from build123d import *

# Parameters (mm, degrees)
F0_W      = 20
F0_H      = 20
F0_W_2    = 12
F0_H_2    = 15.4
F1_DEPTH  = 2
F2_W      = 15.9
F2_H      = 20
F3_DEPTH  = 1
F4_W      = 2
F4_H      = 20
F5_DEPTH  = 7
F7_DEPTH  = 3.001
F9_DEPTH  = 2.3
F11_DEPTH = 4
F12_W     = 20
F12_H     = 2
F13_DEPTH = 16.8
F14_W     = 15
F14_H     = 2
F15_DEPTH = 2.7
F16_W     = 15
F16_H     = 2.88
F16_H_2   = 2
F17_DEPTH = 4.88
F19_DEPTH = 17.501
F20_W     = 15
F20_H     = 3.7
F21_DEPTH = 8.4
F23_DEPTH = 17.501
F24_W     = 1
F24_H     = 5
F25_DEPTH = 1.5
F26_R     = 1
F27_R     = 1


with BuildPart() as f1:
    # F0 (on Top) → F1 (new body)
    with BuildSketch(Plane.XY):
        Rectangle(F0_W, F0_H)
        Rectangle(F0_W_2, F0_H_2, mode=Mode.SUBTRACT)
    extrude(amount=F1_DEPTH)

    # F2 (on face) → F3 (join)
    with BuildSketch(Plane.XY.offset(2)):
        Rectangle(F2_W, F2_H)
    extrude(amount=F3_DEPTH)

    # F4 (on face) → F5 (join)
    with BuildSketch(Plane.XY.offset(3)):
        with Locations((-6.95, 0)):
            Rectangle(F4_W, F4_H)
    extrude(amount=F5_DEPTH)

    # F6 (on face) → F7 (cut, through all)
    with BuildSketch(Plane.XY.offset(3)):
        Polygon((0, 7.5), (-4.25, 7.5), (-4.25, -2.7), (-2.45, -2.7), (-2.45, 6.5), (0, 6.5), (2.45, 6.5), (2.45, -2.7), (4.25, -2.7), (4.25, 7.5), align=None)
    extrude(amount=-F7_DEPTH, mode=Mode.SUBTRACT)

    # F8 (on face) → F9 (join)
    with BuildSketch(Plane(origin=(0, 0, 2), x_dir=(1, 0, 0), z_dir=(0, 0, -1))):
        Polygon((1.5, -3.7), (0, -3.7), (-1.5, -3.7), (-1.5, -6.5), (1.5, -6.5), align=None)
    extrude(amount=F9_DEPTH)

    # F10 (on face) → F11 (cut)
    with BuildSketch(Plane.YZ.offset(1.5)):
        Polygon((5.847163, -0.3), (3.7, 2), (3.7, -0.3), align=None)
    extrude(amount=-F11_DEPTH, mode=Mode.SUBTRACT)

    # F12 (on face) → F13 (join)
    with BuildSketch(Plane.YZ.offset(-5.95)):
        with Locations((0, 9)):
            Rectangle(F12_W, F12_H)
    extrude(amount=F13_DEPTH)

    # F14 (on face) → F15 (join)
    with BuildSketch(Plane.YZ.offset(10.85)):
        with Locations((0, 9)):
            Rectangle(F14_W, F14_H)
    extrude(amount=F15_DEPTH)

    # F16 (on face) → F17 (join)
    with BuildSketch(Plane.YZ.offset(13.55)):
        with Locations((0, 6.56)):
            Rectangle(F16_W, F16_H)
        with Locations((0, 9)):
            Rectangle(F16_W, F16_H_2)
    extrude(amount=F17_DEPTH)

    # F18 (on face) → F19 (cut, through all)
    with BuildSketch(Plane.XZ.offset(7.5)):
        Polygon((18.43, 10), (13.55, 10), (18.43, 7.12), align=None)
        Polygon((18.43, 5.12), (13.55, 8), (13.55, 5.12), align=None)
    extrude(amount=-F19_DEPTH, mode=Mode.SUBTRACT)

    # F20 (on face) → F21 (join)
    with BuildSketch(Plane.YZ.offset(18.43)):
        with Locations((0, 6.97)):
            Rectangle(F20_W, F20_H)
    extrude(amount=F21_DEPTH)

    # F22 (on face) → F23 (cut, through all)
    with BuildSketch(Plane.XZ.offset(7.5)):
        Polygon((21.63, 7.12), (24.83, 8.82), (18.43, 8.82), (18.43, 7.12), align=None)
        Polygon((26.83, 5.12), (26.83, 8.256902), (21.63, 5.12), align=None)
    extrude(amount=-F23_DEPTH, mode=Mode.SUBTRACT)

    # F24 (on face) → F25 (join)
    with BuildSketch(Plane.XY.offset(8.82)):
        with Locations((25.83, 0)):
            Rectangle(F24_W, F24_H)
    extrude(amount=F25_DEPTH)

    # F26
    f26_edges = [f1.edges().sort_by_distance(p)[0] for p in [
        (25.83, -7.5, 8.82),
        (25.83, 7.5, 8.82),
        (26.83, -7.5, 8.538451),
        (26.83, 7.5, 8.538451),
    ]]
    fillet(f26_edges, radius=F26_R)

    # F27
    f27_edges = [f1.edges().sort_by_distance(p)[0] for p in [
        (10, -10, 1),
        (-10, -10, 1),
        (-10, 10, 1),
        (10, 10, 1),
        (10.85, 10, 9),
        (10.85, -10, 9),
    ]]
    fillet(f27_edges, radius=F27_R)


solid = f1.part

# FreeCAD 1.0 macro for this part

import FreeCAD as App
import Part
import Sketcher

V = App.Vector
Q = App.Units.Quantity


def edges_at(feature, points):
    """Names of the edges that pass closest to the given points."""
    edges = feature.Shape.Edges
    near = lambda p: min(range(len(edges)), key=lambda i: edges[i].distToShape(Part.Vertex(*p))[0])
    return sorted({f"Edge{near(p) + 1}" for p in points})


def add_polygon(sketch, points):
    """Adds a closed chain of lines whose ends are joined by coincident constraints."""
    first, n = sketch.GeometryCount, len(points)
    for a, b in zip(points, points[1:] + points[:1]):
        sketch.addGeometry(Part.LineSegment(App.Vector(*a, 0), App.Vector(*b, 0)), False)
    for i in range(n):
        sketch.addConstraint(Sketcher.Constraint("Coincident", first + i, 2, first + (i + 1) % n, 1))

doc = App.newDocument("Part")
body = doc.addObject("PartDesign::Body", "Body")

sketch1 = body.newObject("Sketcher::SketchObject", "Sketch")
sketch1.AttachmentSupport = (doc.getObject("XY_Plane"), [""])
sketch1.MapMode = "FlatFace"
add_polygon(sketch1, [(-10, 10), (-10, -10), (10, -10), (10, 10)])
add_polygon(sketch1, [(6, -7.7), (-6, -7.7), (-6, 7.7), (6, 7.7)])
sketch1.addConstraint([
    Sketcher.Constraint("Vertical", 0),
    Sketcher.Constraint("Horizontal", 1),
    Sketcher.Constraint("Vertical", 2),
    Sketcher.Constraint("Horizontal", 3),
    Sketcher.Constraint("Horizontal", 4),
    Sketcher.Constraint("Vertical", 5),
    Sketcher.Constraint("Horizontal", 6),
    Sketcher.Constraint("Vertical", 7),
    Sketcher.Constraint("Symmetric", 0, 2, 2, 2, -1, 1),
    Sketcher.Constraint("Symmetric", 4, 2, 6, 2, -1, 1),
    Sketcher.Constraint("Equal", 3, 0),
    Sketcher.Constraint("DistanceX", 1, 1, 1, 2, Q("20 mm")),
    Sketcher.Constraint("DistanceX", 4, 2, 4, 1, Q("12 mm")),
    Sketcher.Constraint("DistanceY", 5, 1, 5, 2, Q("15.4 mm")),
])
pad1 = body.newObject("PartDesign::Pad", "Pad")
pad1.Profile = sketch1
pad1.Length = 2

sketch2 = body.newObject("Sketcher::SketchObject", "Sketch001")
sketch2.AttachmentSupport = (doc.getObject("XY_Plane"), [""])
sketch2.MapMode = "FlatFace"
sketch2.AttachmentOffset = App.Placement(V(0, 0, 2), App.Rotation())
add_polygon(sketch2, [(-7.95, 10), (-7.95, -10), (7.95, -10), (7.95, 10)])
sketch2.addConstraint([
    Sketcher.Constraint("Vertical", 0),
    Sketcher.Constraint("Horizontal", 1),
    Sketcher.Constraint("Vertical", 2),
    Sketcher.Constraint("Horizontal", 3),
    Sketcher.Constraint("Symmetric", 0, 2, 2, 2, -1, 1),
    Sketcher.Constraint("DistanceY", 0, 2, 0, 1, Q("20 mm")),
    Sketcher.Constraint("DistanceX", 1, 1, 1, 2, Q("15.9 mm")),
])
pad2 = body.newObject("PartDesign::Pad", "Pad001")
pad2.Profile = sketch2
pad2.Length = 1

sketch3 = body.newObject("Sketcher::SketchObject", "Sketch002")
sketch3.AttachmentSupport = (doc.getObject("XY_Plane"), [""])
sketch3.MapMode = "FlatFace"
sketch3.AttachmentOffset = App.Placement(V(0, 0, 3), App.Rotation())
add_polygon(sketch3, [(-7.95, 10), (-7.95, -10), (-5.95, -10), (-5.95, 10)])
sketch3.addConstraint([
    Sketcher.Constraint("Vertical", 0),
    Sketcher.Constraint("Horizontal", 1),
    Sketcher.Constraint("Vertical", 2),
    Sketcher.Constraint("Horizontal", 3),
    Sketcher.Constraint("DistanceX", 1, 1, 1, 2, Q("2 mm")),
    Sketcher.Constraint("DistanceY", 0, 2, 0, 1, Q("20 mm")),
    Sketcher.Constraint("DistanceY", 0, 2, -1, 1, Q("10 mm")),
    Sketcher.Constraint("DistanceX", 0, 2, -1, 1, Q("7.95 mm")),
])
pad3 = body.newObject("PartDesign::Pad", "Pad002")
pad3.Profile = sketch3
pad3.Length = 7

sketch4 = body.newObject("Sketcher::SketchObject", "Sketch003")
sketch4.AttachmentSupport = (doc.getObject("XY_Plane"), [""])
sketch4.MapMode = "FlatFace"
sketch4.AttachmentOffset = App.Placement(V(0, 0, 3), App.Rotation())
add_polygon(sketch4, [(-4.25, 7.5), (-4.25, -2.7), (-2.45, -2.7), (-2.45, 6.5), (2.45, 6.5), (2.45, -2.7), (4.25, -2.7), (4.25, 7.5)])
sketch4.addConstraint([
    Sketcher.Constraint("Vertical", 0),
    Sketcher.Constraint("Horizontal", 1),
    Sketcher.Constraint("Vertical", 2),
    Sketcher.Constraint("Horizontal", 3),
    Sketcher.Constraint("Vertical", 4),
    Sketcher.Constraint("Horizontal", 5),
    Sketcher.Constraint("Vertical", 6),
    Sketcher.Constraint("Horizontal", 7),
    Sketcher.Constraint("Symmetric", 1, 2, 4, 2, -2),
    Sketcher.Constraint("Equal", 1, 5),
    Sketcher.Constraint("DistanceX", 1, 1, 1, 2, Q("1.8 mm")),
    Sketcher.Constraint("DistanceX", 3, 1, 3, 2, Q("4.9 mm")),
    Sketcher.Constraint("DistanceY", 0, 2, 0, 1, Q("10.2 mm")),
    Sketcher.Constraint("DistanceY", 2, 1, 2, 2, Q("9.2 mm")),
    Sketcher.Constraint("DistanceY", 0, 2, -1, 1, Q("2.7 mm")),
])
pocket1 = body.newObject("PartDesign::Pocket", "Pocket")
pocket1.Profile = sketch4
pocket1.Type = "ThroughAll"

sketch5 = body.newObject("Sketcher::SketchObject", "Sketch004")
sketch5.AttachmentSupport = (doc.getObject("XY_Plane"), [""])
sketch5.MapMode = "FlatFace"
sketch5.AttachmentOffset = App.Placement(V(0, 0, 2), App.Rotation())
add_polygon(sketch5, [(1.5, 3.7), (-1.5, 3.7), (-1.5, 6.5), (1.5, 6.5)])
sketch5.addConstraint([
    Sketcher.Constraint("Horizontal", 0),
    Sketcher.Constraint("Vertical", 1),
    Sketcher.Constraint("Horizontal", 2),
    Sketcher.Constraint("Vertical", 3),
    Sketcher.Constraint("DistanceX", 0, 2, 0, 1, Q("3 mm")),
    Sketcher.Constraint("DistanceY", 1, 1, 1, 2, Q("2.8 mm")),
    Sketcher.Constraint("DistanceX", 0, 2, -1, 1, Q("1.5 mm")),
    Sketcher.Constraint("DistanceY", -1, 1, 0, 2, Q("3.7 mm")),
])
pad4 = body.newObject("PartDesign::Pad", "Pad003")
pad4.Profile = sketch5
pad4.Length = 2.3
pad4.Reversed = True

sketch6 = body.newObject("Sketcher::SketchObject", "Sketch005")
sketch6.AttachmentSupport = (doc.getObject("YZ_Plane"), [""])
sketch6.MapMode = "FlatFace"
sketch6.AttachmentOffset = App.Placement(V(0, 0, 1.5), App.Rotation())
add_polygon(sketch6, [(5.847163, -0.3), (3.7, 2), (3.7, -0.3)])
sketch6.addConstraint([
    Sketcher.Constraint("Vertical", 1),
    Sketcher.Constraint("Horizontal", 2),
    Sketcher.Constraint("DistanceY", 1, 2, 1, 1, Q("2.3 mm")),
    Sketcher.Constraint("DistanceY", -1, 1, 0, 2, Q("2 mm")),
    Sketcher.Constraint("DistanceX", -1, 1, 0, 2, Q("3.7 mm")),
    Sketcher.Constraint("DistanceX", 2, 1, 2, 2, Q("2.147163 mm")),
])
pocket2 = body.newObject("PartDesign::Pocket", "Pocket001")
pocket2.Profile = sketch6
pocket2.Length = 4

sketch7 = body.newObject("Sketcher::SketchObject", "Sketch006")
sketch7.AttachmentSupport = (doc.getObject("YZ_Plane"), [""])
sketch7.MapMode = "FlatFace"
sketch7.AttachmentOffset = App.Placement(V(0, 0, -5.95), App.Rotation())
add_polygon(sketch7, [(-10, 10), (-10, 8), (10, 8), (10, 10)])
sketch7.addConstraint([
    Sketcher.Constraint("Vertical", 0),
    Sketcher.Constraint("Horizontal", 1),
    Sketcher.Constraint("Vertical", 2),
    Sketcher.Constraint("Horizontal", 3),
    Sketcher.Constraint("DistanceX", 1, 1, 1, 2, Q("20 mm")),
    Sketcher.Constraint("DistanceY", 0, 2, 0, 1, Q("2 mm")),
    Sketcher.Constraint("DistanceX", 0, 2, -1, 1, Q("10 mm")),
    Sketcher.Constraint("DistanceY", -1, 1, 0, 2, Q("8 mm")),
])
pad5 = body.newObject("PartDesign::Pad", "Pad004")
pad5.Profile = sketch7
pad5.Length = 16.8

sketch8 = body.newObject("Sketcher::SketchObject", "Sketch007")
sketch8.AttachmentSupport = (doc.getObject("YZ_Plane"), [""])
sketch8.MapMode = "FlatFace"
sketch8.AttachmentOffset = App.Placement(V(0, 0, 10.85), App.Rotation())
add_polygon(sketch8, [(-7.5, 10), (-7.5, 8), (7.5, 8), (7.5, 10)])
sketch8.addConstraint([
    Sketcher.Constraint("Vertical", 0),
    Sketcher.Constraint("Horizontal", 1),
    Sketcher.Constraint("Vertical", 2),
    Sketcher.Constraint("Horizontal", 3),
    Sketcher.Constraint("DistanceX", 1, 1, 1, 2, Q("15 mm")),
    Sketcher.Constraint("DistanceY", 0, 2, 0, 1, Q("2 mm")),
    Sketcher.Constraint("DistanceY", -1, 1, 0, 2, Q("8 mm")),
    Sketcher.Constraint("DistanceX", 0, 2, -1, 1, Q("7.5 mm")),
])
pad6 = body.newObject("PartDesign::Pad", "Pad005")
pad6.Profile = sketch8
pad6.Length = 2.7

sketch9 = body.newObject("Sketcher::SketchObject", "Sketch008")
sketch9.AttachmentSupport = (doc.getObject("YZ_Plane"), [""])
sketch9.MapMode = "FlatFace"
sketch9.AttachmentOffset = App.Placement(V(0, 0, 13.55), App.Rotation())
add_polygon(sketch9, [(-7.5, 5.12), (7.5, 5.12), (7.5, 10), (-7.5, 10)])
sketch9.addConstraint([
    Sketcher.Constraint("Horizontal", 0),
    Sketcher.Constraint("Vertical", 1),
    Sketcher.Constraint("Horizontal", 2),
    Sketcher.Constraint("Vertical", 3),
    Sketcher.Constraint("DistanceX", 0, 1, 0, 2, Q("15 mm")),
    Sketcher.Constraint("DistanceY", -1, 1, 1, 2, Q("10 mm")),
    Sketcher.Constraint("DistanceY", 1, 1, 1, 2, Q("4.88 mm")),
    Sketcher.Constraint("DistanceX", -1, 1, 0, 2, Q("7.5 mm")),
])
pad7 = body.newObject("PartDesign::Pad", "Pad006")
pad7.Profile = sketch9
pad7.Length = 4.88

sketch10 = body.newObject("Sketcher::SketchObject", "Sketch009")
sketch10.AttachmentSupport = (doc.getObject("XZ_Plane"), [""])
sketch10.MapMode = "FlatFace"
sketch10.AttachmentOffset = App.Placement(V(0, 0, 7.5), App.Rotation())
add_polygon(sketch10, [(18.43, 10), (13.55, 10), (18.43, 7.12)])
add_polygon(sketch10, [(18.43, 5.12), (13.55, 8), (13.55, 5.12)])
sketch10.addConstraint([
    Sketcher.Constraint("Horizontal", 0),
    Sketcher.Constraint("Vertical", 2),
    Sketcher.Constraint("Vertical", 4),
    Sketcher.Constraint("Horizontal", 5),
    Sketcher.Constraint("Parallel", 1, 3),
    Sketcher.Constraint("Vertical", 0, 2, 3, 2),
    Sketcher.Constraint("Vertical", 2, 2, 5, 2),
    Sketcher.Constraint("DistanceY", -1, 1, 0, 2, Q("10 mm")),
    Sketcher.Constraint("DistanceY", -1, 1, 3, 2, Q("8 mm")),
    Sketcher.Constraint("DistanceX", 0, 2, 0, 1, Q("4.88 mm")),
    Sketcher.Constraint("DistanceY", 2, 1, 2, 2, Q("2.88 mm")),
    Sketcher.Constraint("DistanceX", -1, 1, 0, 2, Q("13.55 mm")),
])
pocket3 = body.newObject("PartDesign::Pocket", "Pocket002")
pocket3.Profile = sketch10
pocket3.Type = "ThroughAll"

sketch11 = body.newObject("Sketcher::SketchObject", "Sketch010")
sketch11.AttachmentSupport = (doc.getObject("YZ_Plane"), [""])
sketch11.MapMode = "FlatFace"
sketch11.AttachmentOffset = App.Placement(V(0, 0, 18.43), App.Rotation())
add_polygon(sketch11, [(-7.5, 8.82), (-7.5, 5.12), (7.5, 5.12), (7.5, 8.82)])
sketch11.addConstraint([
    Sketcher.Constraint("Vertical", 0),
    Sketcher.Constraint("Horizontal", 1),
    Sketcher.Constraint("Vertical", 2),
    Sketcher.Constraint("Horizontal", 3),
    Sketcher.Constraint("DistanceX", 1, 1, 1, 2, Q("15 mm")),
    Sketcher.Constraint("DistanceY", 0, 2, 0, 1, Q("3.7 mm")),
    Sketcher.Constraint("DistanceX", 0, 2, -1, 1, Q("7.5 mm")),
    Sketcher.Constraint("DistanceY", -1, 1, 0, 2, Q("5.12 mm")),
])
pad8 = body.newObject("PartDesign::Pad", "Pad007")
pad8.Profile = sketch11
pad8.Length = 8.4

sketch12 = body.newObject("Sketcher::SketchObject", "Sketch011")
sketch12.AttachmentSupport = (doc.getObject("XZ_Plane"), [""])
sketch12.MapMode = "FlatFace"
sketch12.AttachmentOffset = App.Placement(V(0, 0, 7.5), App.Rotation())
add_polygon(sketch12, [(21.63, 7.12), (24.83, 8.82), (18.43, 8.82), (18.43, 7.12)])
add_polygon(sketch12, [(26.83, 5.12), (26.83, 8.256902), (21.63, 5.12)])
sketch12.addConstraint([
    Sketcher.Constraint("Horizontal", 1),
    Sketcher.Constraint("Vertical", 2),
    Sketcher.Constraint("Horizontal", 3),
    Sketcher.Constraint("Vertical", 4),
    Sketcher.Constraint("Horizontal", 6),
    Sketcher.Constraint("Vertical", 3, 2, 5, 2),
    Sketcher.Constraint("DistanceX", 1, 2, 1, 1, Q("6.4 mm")),
    Sketcher.Constraint("DistanceX", 3, 1, 3, 2, Q("3.2 mm")),
    Sketcher.Constraint("DistanceX", 6, 1, 6, 2, Q("5.2 mm")),
    Sketcher.Constraint("DistanceY", 2, 2, 2, 1, Q("1.7 mm")),
    Sketcher.Constraint("DistanceY", 5, 2, 3, 2, Q("2 mm")),
    Sketcher.Constraint("DistanceX", -1, 1, 0, 2, Q("24.83 mm")),
    Sketcher.Constraint("DistanceY", -1, 1, 0, 2, Q("8.82 mm")),
    Sketcher.Constraint("DistanceY", 4, 2, 0, 2, Q("0.563098 mm")),
])
pocket4 = body.newObject("PartDesign::Pocket", "Pocket003")
pocket4.Profile = sketch12
pocket4.Type = "ThroughAll"

sketch13 = body.newObject("Sketcher::SketchObject", "Sketch012")
sketch13.AttachmentSupport = (doc.getObject("XY_Plane"), [""])
sketch13.MapMode = "FlatFace"
sketch13.AttachmentOffset = App.Placement(V(0, 0, 8.82), App.Rotation())
add_polygon(sketch13, [(25.33, 2.5), (25.33, -2.5), (26.33, -2.5), (26.33, 2.5)])
sketch13.addConstraint([
    Sketcher.Constraint("Vertical", 0),
    Sketcher.Constraint("Horizontal", 1),
    Sketcher.Constraint("Vertical", 2),
    Sketcher.Constraint("Horizontal", 3),
    Sketcher.Constraint("DistanceX", 1, 1, 1, 2, Q("1 mm")),
    Sketcher.Constraint("DistanceY", 0, 2, 0, 1, Q("5 mm")),
    Sketcher.Constraint("DistanceY", 0, 2, -1, 1, Q("2.5 mm")),
    Sketcher.Constraint("DistanceX", -1, 1, 0, 2, Q("25.33 mm")),
])
pad9 = body.newObject("PartDesign::Pad", "Pad008")
pad9.Profile = sketch13
pad9.Length = 1.5
doc.recompute()

fillet = body.newObject("PartDesign::Fillet", "Fillet")
fillet.Base = (pad9, edges_at(pad9, [
    (25.83, -7.5, 8.82),
    (25.83, 7.5, 8.82),
    (26.83, -7.5, 8.538),
    (26.83, 7.5, 8.538),
]))
fillet.Radius = 1
doc.recompute()

fillet2 = body.newObject("PartDesign::Fillet", "Fillet001")
fillet2.Base = (fillet, edges_at(fillet, [
    (10, -10, 1),
    (-10, -10, 1),
    (-10, 10, 1),
    (10, 10, 1),
    (10.85, 10, 9),
    (10.85, -10, 9),
]))
fillet2.Radius = 1

doc.recompute()
